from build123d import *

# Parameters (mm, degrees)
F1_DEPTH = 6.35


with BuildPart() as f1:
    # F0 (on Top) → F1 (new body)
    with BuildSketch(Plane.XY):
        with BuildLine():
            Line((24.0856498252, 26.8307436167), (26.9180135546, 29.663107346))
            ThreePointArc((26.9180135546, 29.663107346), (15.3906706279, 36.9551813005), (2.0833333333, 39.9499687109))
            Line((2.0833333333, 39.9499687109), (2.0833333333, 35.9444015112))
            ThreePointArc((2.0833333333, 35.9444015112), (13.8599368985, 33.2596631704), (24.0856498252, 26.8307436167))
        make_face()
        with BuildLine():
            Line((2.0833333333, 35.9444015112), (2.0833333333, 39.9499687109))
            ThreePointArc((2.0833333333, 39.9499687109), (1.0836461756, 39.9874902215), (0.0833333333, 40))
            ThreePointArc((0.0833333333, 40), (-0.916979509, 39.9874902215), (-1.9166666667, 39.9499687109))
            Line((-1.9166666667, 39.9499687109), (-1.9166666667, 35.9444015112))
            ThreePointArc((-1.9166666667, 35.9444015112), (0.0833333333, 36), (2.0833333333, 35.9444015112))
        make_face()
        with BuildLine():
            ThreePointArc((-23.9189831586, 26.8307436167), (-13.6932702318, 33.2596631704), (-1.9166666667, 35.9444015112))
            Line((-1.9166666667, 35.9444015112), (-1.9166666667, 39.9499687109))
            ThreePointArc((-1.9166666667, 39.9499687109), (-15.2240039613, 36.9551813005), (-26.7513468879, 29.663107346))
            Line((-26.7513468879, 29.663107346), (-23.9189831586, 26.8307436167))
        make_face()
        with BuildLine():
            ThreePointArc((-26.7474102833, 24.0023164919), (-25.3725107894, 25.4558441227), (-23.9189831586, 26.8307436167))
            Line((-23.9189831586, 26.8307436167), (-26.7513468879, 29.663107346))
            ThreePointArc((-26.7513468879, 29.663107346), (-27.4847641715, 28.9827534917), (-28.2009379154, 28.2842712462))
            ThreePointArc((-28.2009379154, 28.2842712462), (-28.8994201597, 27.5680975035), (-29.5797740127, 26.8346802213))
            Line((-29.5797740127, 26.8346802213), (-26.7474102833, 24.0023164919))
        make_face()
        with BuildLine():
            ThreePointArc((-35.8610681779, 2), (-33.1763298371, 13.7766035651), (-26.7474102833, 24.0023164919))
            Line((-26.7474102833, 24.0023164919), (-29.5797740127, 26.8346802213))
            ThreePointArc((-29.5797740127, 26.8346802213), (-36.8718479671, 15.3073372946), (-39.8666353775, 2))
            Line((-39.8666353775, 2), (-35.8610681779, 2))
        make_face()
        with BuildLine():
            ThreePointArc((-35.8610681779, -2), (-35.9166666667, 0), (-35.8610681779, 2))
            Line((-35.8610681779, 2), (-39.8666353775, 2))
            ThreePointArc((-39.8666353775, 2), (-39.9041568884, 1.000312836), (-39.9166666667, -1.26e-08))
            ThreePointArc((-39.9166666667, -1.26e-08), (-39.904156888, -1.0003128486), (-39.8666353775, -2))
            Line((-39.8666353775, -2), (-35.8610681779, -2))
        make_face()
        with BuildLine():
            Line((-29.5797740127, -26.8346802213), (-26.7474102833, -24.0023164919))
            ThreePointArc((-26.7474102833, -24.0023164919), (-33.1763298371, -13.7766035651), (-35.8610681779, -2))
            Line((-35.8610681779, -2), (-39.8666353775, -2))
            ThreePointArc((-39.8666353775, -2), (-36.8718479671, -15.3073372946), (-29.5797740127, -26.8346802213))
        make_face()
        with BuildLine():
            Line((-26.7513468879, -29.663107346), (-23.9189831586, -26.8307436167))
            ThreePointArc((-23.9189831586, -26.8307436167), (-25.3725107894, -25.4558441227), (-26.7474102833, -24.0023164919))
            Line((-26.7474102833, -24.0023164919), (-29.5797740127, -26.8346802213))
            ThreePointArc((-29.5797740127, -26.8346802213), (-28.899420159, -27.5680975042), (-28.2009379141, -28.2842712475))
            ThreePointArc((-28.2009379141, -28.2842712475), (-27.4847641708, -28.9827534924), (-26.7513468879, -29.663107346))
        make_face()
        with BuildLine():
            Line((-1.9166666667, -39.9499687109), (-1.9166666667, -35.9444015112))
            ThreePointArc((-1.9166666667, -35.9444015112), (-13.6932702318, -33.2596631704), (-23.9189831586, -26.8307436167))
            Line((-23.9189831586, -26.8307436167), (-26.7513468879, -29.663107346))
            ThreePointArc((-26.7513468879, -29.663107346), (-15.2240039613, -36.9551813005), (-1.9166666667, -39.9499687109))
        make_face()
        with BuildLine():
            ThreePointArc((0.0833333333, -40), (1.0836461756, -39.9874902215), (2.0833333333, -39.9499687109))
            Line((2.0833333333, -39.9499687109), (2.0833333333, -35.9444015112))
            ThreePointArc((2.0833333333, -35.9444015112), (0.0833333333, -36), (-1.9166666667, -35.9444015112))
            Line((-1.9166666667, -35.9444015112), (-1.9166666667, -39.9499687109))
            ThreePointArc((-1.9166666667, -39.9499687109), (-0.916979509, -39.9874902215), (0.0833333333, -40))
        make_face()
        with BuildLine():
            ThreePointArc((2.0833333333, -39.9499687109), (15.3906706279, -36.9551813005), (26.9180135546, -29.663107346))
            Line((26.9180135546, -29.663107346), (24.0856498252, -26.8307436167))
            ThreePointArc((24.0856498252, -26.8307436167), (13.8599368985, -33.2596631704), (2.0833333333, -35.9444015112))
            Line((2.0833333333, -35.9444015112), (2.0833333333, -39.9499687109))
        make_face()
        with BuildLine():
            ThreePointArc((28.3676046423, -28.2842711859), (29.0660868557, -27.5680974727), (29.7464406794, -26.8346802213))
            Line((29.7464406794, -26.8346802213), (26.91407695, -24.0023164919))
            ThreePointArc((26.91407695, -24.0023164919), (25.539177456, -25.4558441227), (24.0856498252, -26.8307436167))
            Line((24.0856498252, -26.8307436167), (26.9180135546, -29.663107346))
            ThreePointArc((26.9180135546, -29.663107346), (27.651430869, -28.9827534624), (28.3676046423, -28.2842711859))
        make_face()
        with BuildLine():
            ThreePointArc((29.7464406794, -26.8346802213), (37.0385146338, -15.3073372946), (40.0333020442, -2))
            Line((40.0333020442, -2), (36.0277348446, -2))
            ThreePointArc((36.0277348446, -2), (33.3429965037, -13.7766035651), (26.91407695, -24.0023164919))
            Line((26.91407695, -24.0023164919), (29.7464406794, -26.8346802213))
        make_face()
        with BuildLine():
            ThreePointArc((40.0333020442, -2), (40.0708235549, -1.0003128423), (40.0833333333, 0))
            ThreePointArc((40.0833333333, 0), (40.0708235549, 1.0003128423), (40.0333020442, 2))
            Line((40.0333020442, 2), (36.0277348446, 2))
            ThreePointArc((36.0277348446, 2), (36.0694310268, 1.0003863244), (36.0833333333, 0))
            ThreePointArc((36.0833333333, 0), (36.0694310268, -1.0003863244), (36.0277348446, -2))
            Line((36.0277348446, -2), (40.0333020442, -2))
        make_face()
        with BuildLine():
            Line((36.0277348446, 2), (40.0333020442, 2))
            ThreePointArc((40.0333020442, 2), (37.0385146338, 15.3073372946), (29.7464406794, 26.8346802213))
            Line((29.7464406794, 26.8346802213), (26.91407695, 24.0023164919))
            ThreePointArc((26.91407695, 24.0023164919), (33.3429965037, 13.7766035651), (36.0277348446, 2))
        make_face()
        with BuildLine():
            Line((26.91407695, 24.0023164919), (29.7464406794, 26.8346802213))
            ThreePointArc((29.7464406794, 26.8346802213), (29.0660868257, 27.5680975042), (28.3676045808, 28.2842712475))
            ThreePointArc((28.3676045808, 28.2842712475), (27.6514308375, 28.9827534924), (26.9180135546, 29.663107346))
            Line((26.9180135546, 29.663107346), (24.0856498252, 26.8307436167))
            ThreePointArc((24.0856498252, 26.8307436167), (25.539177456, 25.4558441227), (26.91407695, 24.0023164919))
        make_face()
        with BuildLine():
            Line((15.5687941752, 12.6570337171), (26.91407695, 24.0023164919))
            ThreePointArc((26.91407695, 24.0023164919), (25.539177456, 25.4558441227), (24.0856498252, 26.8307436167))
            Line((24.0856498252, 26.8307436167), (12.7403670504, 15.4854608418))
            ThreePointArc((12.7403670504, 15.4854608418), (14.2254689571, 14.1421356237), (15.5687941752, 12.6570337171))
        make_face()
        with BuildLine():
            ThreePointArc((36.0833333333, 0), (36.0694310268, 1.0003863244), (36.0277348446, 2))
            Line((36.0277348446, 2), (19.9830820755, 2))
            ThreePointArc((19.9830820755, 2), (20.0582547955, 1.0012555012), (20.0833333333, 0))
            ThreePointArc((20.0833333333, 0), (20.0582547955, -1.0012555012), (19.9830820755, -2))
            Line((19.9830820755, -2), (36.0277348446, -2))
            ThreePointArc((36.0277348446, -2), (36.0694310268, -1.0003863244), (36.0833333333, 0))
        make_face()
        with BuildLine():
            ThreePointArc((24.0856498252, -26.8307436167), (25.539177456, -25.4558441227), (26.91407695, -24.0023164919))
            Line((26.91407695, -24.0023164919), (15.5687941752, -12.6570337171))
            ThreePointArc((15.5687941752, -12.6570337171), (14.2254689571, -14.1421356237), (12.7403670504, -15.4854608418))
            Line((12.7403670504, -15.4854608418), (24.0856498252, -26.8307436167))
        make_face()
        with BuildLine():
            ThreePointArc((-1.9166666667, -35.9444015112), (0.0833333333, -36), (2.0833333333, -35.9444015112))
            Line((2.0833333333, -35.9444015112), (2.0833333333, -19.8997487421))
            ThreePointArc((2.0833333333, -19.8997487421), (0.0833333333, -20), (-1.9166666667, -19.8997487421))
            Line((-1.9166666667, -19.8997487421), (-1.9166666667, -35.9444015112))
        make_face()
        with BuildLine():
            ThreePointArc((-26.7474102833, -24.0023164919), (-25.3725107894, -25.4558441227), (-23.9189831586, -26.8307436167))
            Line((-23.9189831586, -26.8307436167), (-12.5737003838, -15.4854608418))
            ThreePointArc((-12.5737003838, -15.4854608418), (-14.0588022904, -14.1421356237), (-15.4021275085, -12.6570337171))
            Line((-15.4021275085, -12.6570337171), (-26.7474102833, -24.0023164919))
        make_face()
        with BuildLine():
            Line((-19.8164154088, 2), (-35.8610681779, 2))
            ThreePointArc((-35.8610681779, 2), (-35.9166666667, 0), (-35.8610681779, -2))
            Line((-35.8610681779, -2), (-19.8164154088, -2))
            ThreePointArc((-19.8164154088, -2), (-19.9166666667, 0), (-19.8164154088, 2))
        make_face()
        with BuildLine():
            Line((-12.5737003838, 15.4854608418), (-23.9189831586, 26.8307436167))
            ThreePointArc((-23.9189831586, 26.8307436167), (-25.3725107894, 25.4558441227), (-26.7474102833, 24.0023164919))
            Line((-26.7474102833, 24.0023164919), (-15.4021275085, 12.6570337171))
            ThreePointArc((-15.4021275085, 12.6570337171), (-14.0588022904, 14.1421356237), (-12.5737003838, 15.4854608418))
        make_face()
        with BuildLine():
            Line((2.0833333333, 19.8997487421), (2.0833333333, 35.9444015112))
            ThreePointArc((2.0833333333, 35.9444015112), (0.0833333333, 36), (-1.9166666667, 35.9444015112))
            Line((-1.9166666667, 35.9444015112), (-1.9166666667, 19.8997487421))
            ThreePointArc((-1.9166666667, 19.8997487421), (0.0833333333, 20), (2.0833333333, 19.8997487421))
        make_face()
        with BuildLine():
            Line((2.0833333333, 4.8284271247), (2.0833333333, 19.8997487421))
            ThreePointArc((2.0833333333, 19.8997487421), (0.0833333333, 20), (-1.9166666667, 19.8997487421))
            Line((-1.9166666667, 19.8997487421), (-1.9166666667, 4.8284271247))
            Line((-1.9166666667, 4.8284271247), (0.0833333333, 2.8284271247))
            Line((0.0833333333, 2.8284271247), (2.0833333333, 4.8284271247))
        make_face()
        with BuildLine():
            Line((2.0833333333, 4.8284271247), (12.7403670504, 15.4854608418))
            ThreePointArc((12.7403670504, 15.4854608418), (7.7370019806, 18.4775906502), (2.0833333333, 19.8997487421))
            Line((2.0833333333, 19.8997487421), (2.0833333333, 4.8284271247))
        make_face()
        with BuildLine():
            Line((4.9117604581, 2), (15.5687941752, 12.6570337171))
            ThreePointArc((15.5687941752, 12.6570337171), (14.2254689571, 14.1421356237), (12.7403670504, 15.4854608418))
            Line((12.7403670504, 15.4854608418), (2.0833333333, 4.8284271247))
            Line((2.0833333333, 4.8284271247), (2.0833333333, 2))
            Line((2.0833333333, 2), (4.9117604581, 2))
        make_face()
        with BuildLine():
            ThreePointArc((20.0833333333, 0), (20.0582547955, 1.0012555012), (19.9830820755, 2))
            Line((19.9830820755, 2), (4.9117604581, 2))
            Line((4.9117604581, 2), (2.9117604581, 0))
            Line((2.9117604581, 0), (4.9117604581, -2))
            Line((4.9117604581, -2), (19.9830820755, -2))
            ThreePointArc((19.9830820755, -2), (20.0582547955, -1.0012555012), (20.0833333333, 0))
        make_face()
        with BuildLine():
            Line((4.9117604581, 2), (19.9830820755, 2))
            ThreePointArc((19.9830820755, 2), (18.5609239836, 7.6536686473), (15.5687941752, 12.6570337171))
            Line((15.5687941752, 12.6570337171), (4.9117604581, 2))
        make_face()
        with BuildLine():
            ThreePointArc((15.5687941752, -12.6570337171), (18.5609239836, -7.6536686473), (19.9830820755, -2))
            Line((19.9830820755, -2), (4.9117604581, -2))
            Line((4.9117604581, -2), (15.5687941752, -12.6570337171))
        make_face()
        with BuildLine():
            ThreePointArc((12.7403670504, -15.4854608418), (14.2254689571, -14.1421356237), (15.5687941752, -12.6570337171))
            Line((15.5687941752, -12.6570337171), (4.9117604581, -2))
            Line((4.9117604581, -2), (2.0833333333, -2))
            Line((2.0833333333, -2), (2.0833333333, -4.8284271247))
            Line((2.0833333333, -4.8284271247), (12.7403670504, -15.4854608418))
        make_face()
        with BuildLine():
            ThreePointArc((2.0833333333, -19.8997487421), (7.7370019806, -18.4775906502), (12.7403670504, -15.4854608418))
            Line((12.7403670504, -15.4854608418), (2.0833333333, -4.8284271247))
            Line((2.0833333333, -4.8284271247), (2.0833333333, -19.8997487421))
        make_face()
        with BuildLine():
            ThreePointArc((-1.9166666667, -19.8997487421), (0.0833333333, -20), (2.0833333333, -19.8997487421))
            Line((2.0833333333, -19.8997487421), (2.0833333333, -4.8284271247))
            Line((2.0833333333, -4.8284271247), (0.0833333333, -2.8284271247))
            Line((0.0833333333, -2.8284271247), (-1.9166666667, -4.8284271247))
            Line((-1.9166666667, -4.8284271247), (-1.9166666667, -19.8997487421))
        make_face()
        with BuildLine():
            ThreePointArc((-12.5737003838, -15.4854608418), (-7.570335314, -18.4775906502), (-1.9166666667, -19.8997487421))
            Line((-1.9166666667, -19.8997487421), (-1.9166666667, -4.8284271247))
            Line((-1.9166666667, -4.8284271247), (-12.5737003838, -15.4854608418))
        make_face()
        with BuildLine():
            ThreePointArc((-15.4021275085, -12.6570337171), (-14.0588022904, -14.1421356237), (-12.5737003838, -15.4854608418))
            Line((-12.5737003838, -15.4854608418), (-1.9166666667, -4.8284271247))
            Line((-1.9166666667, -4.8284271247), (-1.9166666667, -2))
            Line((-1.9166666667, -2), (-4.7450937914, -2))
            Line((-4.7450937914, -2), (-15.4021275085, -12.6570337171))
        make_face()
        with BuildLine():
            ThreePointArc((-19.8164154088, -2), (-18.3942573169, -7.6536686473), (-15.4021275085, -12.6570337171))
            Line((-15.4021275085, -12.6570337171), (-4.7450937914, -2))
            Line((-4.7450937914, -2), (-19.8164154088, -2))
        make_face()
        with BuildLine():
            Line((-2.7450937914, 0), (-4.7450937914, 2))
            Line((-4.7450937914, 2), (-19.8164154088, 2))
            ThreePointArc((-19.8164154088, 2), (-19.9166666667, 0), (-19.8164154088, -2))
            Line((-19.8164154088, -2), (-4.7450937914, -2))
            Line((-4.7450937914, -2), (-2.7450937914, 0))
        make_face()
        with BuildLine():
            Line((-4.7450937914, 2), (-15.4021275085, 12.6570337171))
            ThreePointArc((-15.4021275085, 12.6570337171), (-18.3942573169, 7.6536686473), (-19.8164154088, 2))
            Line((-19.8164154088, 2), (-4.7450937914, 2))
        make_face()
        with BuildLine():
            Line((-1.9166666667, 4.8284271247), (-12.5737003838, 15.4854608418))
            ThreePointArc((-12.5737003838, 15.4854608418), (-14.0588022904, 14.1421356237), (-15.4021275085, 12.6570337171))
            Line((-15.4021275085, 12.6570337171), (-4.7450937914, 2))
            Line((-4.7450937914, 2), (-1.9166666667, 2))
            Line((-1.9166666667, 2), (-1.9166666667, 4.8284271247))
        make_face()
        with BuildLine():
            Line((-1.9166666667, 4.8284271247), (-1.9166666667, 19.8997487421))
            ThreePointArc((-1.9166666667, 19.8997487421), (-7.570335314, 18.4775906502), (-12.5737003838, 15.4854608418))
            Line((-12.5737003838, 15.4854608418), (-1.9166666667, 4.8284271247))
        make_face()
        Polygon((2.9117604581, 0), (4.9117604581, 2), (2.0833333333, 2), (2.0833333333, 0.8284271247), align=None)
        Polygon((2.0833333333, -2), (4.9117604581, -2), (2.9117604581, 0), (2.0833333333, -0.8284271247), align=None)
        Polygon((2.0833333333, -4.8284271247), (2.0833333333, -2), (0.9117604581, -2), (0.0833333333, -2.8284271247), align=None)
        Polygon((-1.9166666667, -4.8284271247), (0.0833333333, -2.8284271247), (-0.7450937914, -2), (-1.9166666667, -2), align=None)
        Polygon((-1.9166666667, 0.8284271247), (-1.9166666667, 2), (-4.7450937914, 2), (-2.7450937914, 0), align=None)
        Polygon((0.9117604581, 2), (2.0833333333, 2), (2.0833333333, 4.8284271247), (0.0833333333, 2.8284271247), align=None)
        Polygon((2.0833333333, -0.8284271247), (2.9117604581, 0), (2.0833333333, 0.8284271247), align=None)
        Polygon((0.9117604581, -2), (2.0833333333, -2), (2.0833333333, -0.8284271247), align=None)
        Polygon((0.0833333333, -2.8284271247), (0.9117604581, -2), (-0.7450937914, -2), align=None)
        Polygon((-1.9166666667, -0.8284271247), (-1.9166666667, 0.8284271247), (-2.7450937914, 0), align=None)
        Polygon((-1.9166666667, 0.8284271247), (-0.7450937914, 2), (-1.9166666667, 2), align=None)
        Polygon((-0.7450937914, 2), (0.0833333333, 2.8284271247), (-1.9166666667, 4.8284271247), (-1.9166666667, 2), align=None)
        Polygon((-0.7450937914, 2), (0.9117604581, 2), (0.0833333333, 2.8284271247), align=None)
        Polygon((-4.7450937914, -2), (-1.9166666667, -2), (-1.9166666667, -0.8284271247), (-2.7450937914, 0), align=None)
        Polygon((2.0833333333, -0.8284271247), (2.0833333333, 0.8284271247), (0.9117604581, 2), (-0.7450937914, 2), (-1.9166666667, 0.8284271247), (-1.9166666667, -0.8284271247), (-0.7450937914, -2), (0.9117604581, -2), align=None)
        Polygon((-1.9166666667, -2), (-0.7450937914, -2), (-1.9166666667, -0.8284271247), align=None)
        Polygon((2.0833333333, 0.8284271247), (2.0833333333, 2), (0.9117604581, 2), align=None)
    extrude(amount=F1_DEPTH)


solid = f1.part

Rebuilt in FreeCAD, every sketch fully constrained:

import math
import FreeCAD as App
import Part
import Sketcher
from FreeCAD import Vector
Q = App.Units.Quantity

doc = App.newDocument("Part")
params = doc.addObject("Spreadsheet::Sheet", "Params")
for row, (alias, value) in enumerate([
    ("sketch1_radius", "40 mm"),
    ("sketch1_radius2", "20 mm"),
    ("sketch1_radius3", "36 mm"),
    ("pad1_length", "6.35 mm"),
], start=1):
    params.set(f"A{row}", alias)
    params.set(f"B{row}", "=" + value)
    params.setAlias(f"B{row}", alias)

body = doc.addObject("PartDesign::Body", "Body")

sketch1 = body.newObject("Sketcher::SketchObject", "Sketch")
sketch1.AttachmentSupport = (doc.getObject("XY_Plane"), [""])
sketch1.MapMode = "FlatFace"
sketch1.addGeometry(Part.ArcOfCircle(Part.Circle(Vector(0.1, 0, 0), Vector(0, 0, 1), 40), math.radians(48), math.radians(87)), False)
sketch1.addGeometry(Part.ArcOfCircle(Part.Circle(Vector(0.1, 0, 0), Vector(0, 0, 1), 40), math.radians(87.13), math.radians(90)), False)
sketch1.addGeometry(Part.ArcOfCircle(Part.Circle(Vector(0.1, 0, 0), Vector(0, 0, 1), 40), math.radians(90), math.radians(92.87)), False)
sketch1.addGeometry(Part.ArcOfCircle(Part.Circle(Vector(0.1, 0, 0), Vector(0, 0, 1), 40), math.radians(93), math.radians(132)), False)
sketch1.addGeometry(Part.ArcOfCircle(Part.Circle(Vector(0.1, 0, 0), Vector(0, 0, 1), 40), math.radians(132.13), math.radians(135)), False)
sketch1.addGeometry(Part.ArcOfCircle(Part.Circle(Vector(0.1, 0, 0), Vector(0, 0, 1), 40), math.radians(135), math.radians(137.87)), False)
sketch1.addGeometry(Part.ArcOfCircle(Part.Circle(Vector(0.1, 0, 0), Vector(0, 0, 1), 40), math.radians(138), math.radians(177)), False)
sketch1.addGeometry(Part.ArcOfCircle(Part.Circle(Vector(0.1, 0, 0), Vector(0, 0, 1), 40), math.radians(177.13), math.radians(180)), False)
sketch1.addGeometry(Part.ArcOfCircle(Part.Circle(Vector(0.1, 0, 0), Vector(0, 0, 1), 40), math.radians(-180), math.radians(-177.13)), False)
sketch1.addGeometry(Part.ArcOfCircle(Part.Circle(Vector(0.1, 0, 0), Vector(0, 0, 1), 40), math.radians(-177), math.radians(-138)), False)
sketch1.addGeometry(Part.ArcOfCircle(Part.Circle(Vector(0.1, 0, 0), Vector(0, 0, 1), 40), math.radians(-137.87), math.radians(-135)), False)
sketch1.addGeometry(Part.ArcOfCircle(Part.Circle(Vector(0.1, 0, 0), Vector(0, 0, 1), 40), math.radians(-135), math.radians(-132.13)), False)
sketch1.addGeometry(Part.ArcOfCircle(Part.Circle(Vector(0.1, 0, 0), Vector(0, 0, 1), 40), math.radians(-132), math.radians(-93)), False)
sketch1.addGeometry(Part.ArcOfCircle(Part.Circle(Vector(0.1, 0, 0), Vector(0, 0, 1), 40), math.radians(-92.87), math.radians(-90)), False)
sketch1.addGeometry(Part.ArcOfCircle(Part.Circle(Vector(0.1, 0, 0), Vector(0, 0, 1), 40), math.radians(-90), math.radians(-87.13)), False)
sketch1.addGeometry(Part.ArcOfCircle(Part.Circle(Vector(0.1, 0, 0), Vector(0, 0, 1), 40), math.radians(-87), math.radians(-48)), False)
sketch1.addGeometry(Part.ArcOfCircle(Part.Circle(Vector(0.1, 0, 0), Vector(0, 0, 1), 40), math.radians(-47.87), math.radians(-45)), False)
sketch1.addGeometry(Part.ArcOfCircle(Part.Circle(Vector(0.1, 0, 0), Vector(0, 0, 1), 40), math.radians(-45), math.radians(-42.13)), False)
sketch1.addGeometry(Part.ArcOfCircle(Part.Circle(Vector(0.1, 0, 0), Vector(0, 0, 1), 40), math.radians(-42), math.radians(-3)), False)
sketch1.addGeometry(Part.ArcOfCircle(Part.Circle(Vector(0.1, 0, 0), Vector(0, 0, 1), 40), math.radians(-2.87), math.radians(0)), False)
sketch1.addGeometry(Part.ArcOfCircle(Part.Circle(Vector(0.1, 0, 0), Vector(0, 0, 1), 40), math.radians(0), math.radians(2.87)), False)
sketch1.addGeometry(Part.ArcOfCircle(Part.Circle(Vector(0.1, 0, 0), Vector(0, 0, 1), 40), math.radians(3), math.radians(42)), False)
sketch1.addGeometry(Part.ArcOfCircle(Part.Circle(Vector(0.1, 0, 0), Vector(0, 0, 1), 40), math.radians(42.13), math.radians(45)), False)
sketch1.addGeometry(Part.ArcOfCircle(Part.Circle(Vector(0.1, 0, 0), Vector(0, 0, 1), 40), math.radians(45), math.radians(47.87)), False)
sketch1.addGeometry(Part.LineSegment(Vector(-23.9, -26.8, 0), Vector(-12.6, -15.5, 0)), False)
sketch1.addGeometry(Part.ArcOfCircle(Part.Circle(Vector(0.1, 0, 0), Vector(0, 0, 1), 20), math.radians(-129), math.radians(-96)), False)
sketch1.addGeometry(Part.LineSegment(Vector(-1.9, -19.9, 0), Vector(-1.9, -35.9, 0)), False)
sketch1.addGeometry(Part.ArcOfCircle(Part.Circle(Vector(0.1, 0, 0), Vector(0, 0, 1), 36), math.radians(-132), math.radians(-93)), False)
sketch1.addGeometry(Part.LineSegment(Vector(-35.9, -2, 0), Vector(-19.8, -2, 0)), False)
sketch1.addGeometry(Part.ArcOfCircle(Part.Circle(Vector(0.1, 0, 0), Vector(0, 0, 1), 20), math.radians(-174), math.radians(-141)), False)
sketch1.addGeometry(Part.LineSegment(Vector(-15.4, -12.7, 0), Vector(-26.7, -24, 0)), False)
sketch1.addGeometry(Part.ArcOfCircle(Part.Circle(Vector(0.1, 0, 0), Vector(0, 0, 1), 36), math.radians(-177), math.radians(-138)), False)
sketch1.addGeometry(Part.LineSegment(Vector(2.1, -35.9, 0), Vector(2.1, -19.9, 0)), False)
sketch1.addGeometry(Part.ArcOfCircle(Part.Circle(Vector(0.1, 0, 0), Vector(0, 0, 1), 20), math.radians(-84), math.radians(-51)), False)
sketch1.addGeometry(Part.LineSegment(Vector(12.7, -15.5, 0), Vector(24.1, -26.8, 0)), False)
sketch1.addGeometry(Part.ArcOfCircle(Part.Circle(Vector(0.1, 0, 0), Vector(0, 0, 1), 36), math.radians(-87), math.radians(-48)), False)
sketch1.addGeometry(Part.LineSegment(Vector(26.9, -24, 0), Vector(15.6, -12.7, 0)), False)
sketch1.addGeometry(Part.ArcOfCircle(Part.Circle(Vector(0.1, 0, 0), Vector(0, 0, 1), 20), math.radians(-39), math.radians(-6)), False)
sketch1.addGeometry(Part.LineSegment(Vector(20, -2, 0), Vector(36, -2, 0)), False)
sketch1.addGeometry(Part.ArcOfCircle(Part.Circle(Vector(0.1, 0, 0), Vector(0, 0, 1), 36), math.radians(-42), math.radians(-3)), False)
sketch1.addGeometry(Part.LineSegment(Vector(-26.7, 24, 0), Vector(-15.4, 12.7, 0)), False)
sketch1.addGeometry(Part.ArcOfCircle(Part.Circle(Vector(0.1, 0, 0), Vector(0, 0, 1), 20), math.radians(141), math.radians(174)), False)
sketch1.addGeometry(Part.LineSegment(Vector(-19.8, 2, 0), Vector(-35.9, 2, 0)), False)
sketch1.addGeometry(Part.ArcOfCircle(Part.Circle(Vector(0.1, 0, 0), Vector(0, 0, 1), 36), math.radians(138), math.radians(177)), False)
sketch1.addGeometry(Part.LineSegment(Vector(-1.9, 35.9, 0), Vector(-1.9, 19.9, 0)), False)
sketch1.addGeometry(Part.ArcOfCircle(Part.Circle(Vector(0.1, 0, 0), Vector(0, 0, 1), 20), math.radians(96), math.radians(129)), False)
sketch1.addGeometry(Part.LineSegment(Vector(-12.6, 15.5, 0), Vector(-23.9, 26.8, 0)), False)
sketch1.addGeometry(Part.ArcOfCircle(Part.Circle(Vector(0.1, 0, 0), Vector(0, 0, 1), 36), math.radians(93), math.radians(132)), False)
sketch1.addGeometry(Part.LineSegment(Vector(36, 2, 0), Vector(20, 2, 0)), False)
sketch1.addGeometry(Part.ArcOfCircle(Part.Circle(Vector(0.1, 0, 0), Vector(0, 0, 1), 20), math.radians(6), math.radians(39)), False)
sketch1.addGeometry(Part.LineSegment(Vector(15.6, 12.7, 0), Vector(26.9, 24, 0)), False)
sketch1.addGeometry(Part.ArcOfCircle(Part.Circle(Vector(0.1, 0, 0), Vector(0, 0, 1), 36), math.radians(3), math.radians(42)), False)
sketch1.addGeometry(Part.LineSegment(Vector(24.1, 26.8, 0), Vector(12.7, 15.5, 0)), False)
sketch1.addGeometry(Part.ArcOfCircle(Part.Circle(Vector(0.1, 0, 0), Vector(0, 0, 1), 20), math.radians(51), math.radians(84)), False)
sketch1.addGeometry(Part.LineSegment(Vector(2.1, 19.9, 0), Vector(2.1, 35.9, 0)), False)
sketch1.addGeometry(Part.ArcOfCircle(Part.Circle(Vector(0.1, 0, 0), Vector(0, 0, 1), 36), math.radians(48), math.radians(87)), False)
sketch1.addConstraint(Sketcher.Constraint("Tangent", 0, 2, 1, 1))
sketch1.addConstraint(Sketcher.Constraint("Tangent", 1, 2, 2, 1))
sketch1.addConstraint(Sketcher.Constraint("Tangent", 2, 2, 3, 1))
sketch1.addConstraint(Sketcher.Constraint("Tangent", 3, 2, 4, 1))
sketch1.addConstraint(Sketcher.Constraint("Tangent", 4, 2, 5, 1))
sketch1.addConstraint(Sketcher.Constraint("Tangent", 5, 2, 6, 1))
sketch1.addConstraint(Sketcher.Constraint("Tangent", 6, 2, 7, 1))
sketch1.addConstraint(Sketcher.Constraint("Tangent", 7, 2, 8, 1))
sketch1.addConstraint(Sketcher.Constraint("Tangent", 8, 2, 9, 1))
sketch1.addConstraint(Sketcher.Constraint("Tangent", 9, 2, 10, 1))
sketch1.addConstraint(Sketcher.Constraint("Tangent", 10, 2, 11, 1))
sketch1.addConstraint(Sketcher.Constraint("Tangent", 11, 2, 12, 1))
sketch1.addConstraint(Sketcher.Constraint("Tangent", 12, 2, 13, 1))
sketch1.addConstraint(Sketcher.Constraint("Tangent", 13, 2, 14, 1))
sketch1.addConstraint(Sketcher.Constraint("Tangent", 14, 2, 15, 1))
sketch1.addConstraint(Sketcher.Constraint("Tangent", 15, 2, 16, 1))
sketch1.addConstraint(Sketcher.Constraint("Tangent", 16, 2, 17, 1))
sketch1.addConstraint(Sketcher.Constraint("Tangent", 17, 2, 18, 1))
sketch1.addConstraint(Sketcher.Constraint("Tangent", 18, 2, 19, 1))
sketch1.addConstraint(Sketcher.Constraint("Tangent", 19, 2, 20, 1))
sketch1.addConstraint(Sketcher.Constraint("Tangent", 20, 2, 21, 1))
sketch1.addConstraint(Sketcher.Constraint("Tangent", 21, 2, 22, 1))
sketch1.addConstraint(Sketcher.Constraint("Tangent", 22, 2, 23, 1))
sketch1.addConstraint(Sketcher.Constraint("Tangent", 23, 2, 0, 1))
sketch1.addConstraint(Sketcher.Constraint("Coincident", 24, 2, 25, 1))
sketch1.addConstraint(Sketcher.Constraint("Coincident", 25, 2, 26, 1))
sketch1.addConstraint(Sketcher.Constraint("Coincident", 26, 2, 27, 2))
sketch1.addConstraint(Sketcher.Constraint("Coincident", 27, 1, 24, 1))
sketch1.addConstraint(Sketcher.Constraint("Coincident", 28, 2, 29, 1))
sketch1.addConstraint(Sketcher.Constraint("Coincident", 29, 2, 30, 1))
sketch1.addConstraint(Sketcher.Constraint("Coincident", 30, 2, 31, 2))
sketch1.addConstraint(Sketcher.Constraint("Coincident", 31, 1, 28, 1))
sketch1.addConstraint(Sketcher.Constraint("Coincident", 32, 2, 33, 1))
sketch1.addConstraint(Sketcher.Constraint("Coincident", 33, 2, 34, 1))
sketch1.addConstraint(Sketcher.Constraint("Coincident", 34, 2, 35, 2))
sketch1.addConstraint(Sketcher.Constraint("Coincident", 35, 1, 32, 1))
sketch1.addConstraint(Sketcher.Constraint("Coincident", 36, 2, 37, 1))
sketch1.addConstraint(Sketcher.Constraint("Coincident", 37, 2, 38, 1))
sketch1.addConstraint(Sketcher.Constraint("Coincident", 38, 2, 39, 2))
sketch1.addConstraint(Sketcher.Constraint("Coincident", 39, 1, 36, 1))
sketch1.addConstraint(Sketcher.Constraint("Coincident", 40, 2, 41, 1))
sketch1.addConstraint(Sketcher.Constraint("Coincident", 41, 2, 42, 1))
sketch1.addConstraint(Sketcher.Constraint("Coincident", 42, 2, 43, 2))
sketch1.addConstraint(Sketcher.Constraint("Coincident", 43, 1, 40, 1))
sketch1.addConstraint(Sketcher.Constraint("Coincident", 44, 2, 45, 1))
sketch1.addConstraint(Sketcher.Constraint("Coincident", 45, 2, 46, 1))
sketch1.addConstraint(Sketcher.Constraint("Coincident", 46, 2, 47, 2))
sketch1.addConstraint(Sketcher.Constraint("Coincident", 47, 1, 44, 1))
sketch1.addConstraint(Sketcher.Constraint("Coincident", 48, 2, 49, 1))
sketch1.addConstraint(Sketcher.Constraint("Coincident", 49, 2, 50, 1))
sketch1.addConstraint(Sketcher.Constraint("Coincident", 50, 2, 51, 2))
sketch1.addConstraint(Sketcher.Constraint("Coincident", 51, 1, 48, 1))
sketch1.addConstraint(Sketcher.Constraint("Coincident", 52, 2, 53, 1))
sketch1.addConstraint(Sketcher.Constraint("Coincident", 53, 2, 54, 1))
sketch1.addConstraint(Sketcher.Constraint("Coincident", 54, 2, 55, 2))
sketch1.addConstraint(Sketcher.Constraint("Coincident", 55, 1, 52, 1))
sketch1.addConstraint(Sketcher.Constraint("Vertical", 26))
sketch1.addConstraint(Sketcher.Constraint("Horizontal", 28))
sketch1.addConstraint(Sketcher.Constraint("Vertical", 32))
sketch1.addConstraint(Sketcher.Constraint("Horizontal", 38))
sketch1.addConstraint(Sketcher.Constraint("Horizontal", 42))
sketch1.addConstraint(Sketcher.Constraint("Vertical", 44))
sketch1.addConstraint(Sketcher.Constraint("Horizontal", 48))
sketch1.addConstraint(Sketcher.Constraint("Vertical", 54))
sketch1.addConstraint(Sketcher.Constraint("Coincident", 2, 3, 0, 3))
sketch1.addConstraint(Sketcher.Constraint("Coincident", 4, 3, 0, 3))
sketch1.addConstraint(Sketcher.Constraint("Coincident", 6, 3, 0, 3))
sketch1.addConstraint(Sketcher.Constraint("Coincident", 8, 3, 0, 3))
sketch1.addConstraint(Sketcher.Constraint("Coincident", 10, 3, 0, 3))
sketch1.addConstraint(Sketcher.Constraint("Coincident", 12, 3, 0, 3))
sketch1.addConstraint(Sketcher.Constraint("Coincident", 14, 3, 0, 3))
sketch1.addConstraint(Sketcher.Constraint("Coincident", 16, 3, 0, 3))
sketch1.addConstraint(Sketcher.Constraint("Coincident", 18, 3, 0, 3))
sketch1.addConstraint(Sketcher.Constraint("Coincident", 20, 3, 0, 3))
sketch1.addConstraint(Sketcher.Constraint("Coincident", 25, 3, 0, 3))
sketch1.addConstraint(Sketcher.Constraint("Coincident", 27, 3, 0, 3))
sketch1.addConstraint(Sketcher.Constraint("Coincident", 29, 3, 0, 3))
sketch1.addConstraint(Sketcher.Constraint("Coincident", 31, 3, 0, 3))
sketch1.addConstraint(Sketcher.Constraint("Coincident", 33, 3, 0, 3))
sketch1.addConstraint(Sketcher.Constraint("Coincident", 35, 3, 0, 3))
sketch1.addConstraint(Sketcher.Constraint("Coincident", 37, 3, 0, 3))
sketch1.addConstraint(Sketcher.Constraint("Coincident", 39, 3, 0, 3))
sketch1.addConstraint(Sketcher.Constraint("Coincident", 41, 3, 0, 3))
sketch1.addConstraint(Sketcher.Constraint("Coincident", 43, 3, 0, 3))
sketch1.addConstraint(Sketcher.Constraint("Coincident", 45, 3, 0, 3))
sketch1.addConstraint(Sketcher.Constraint("Coincident", 47, 3, 0, 3))
sketch1.addConstraint(Sketcher.Constraint("Coincident", 49, 3, 0, 3))
sketch1.addConstraint(Sketcher.Constraint("Coincident", 51, 3, 0, 3))
sketch1.addConstraint(Sketcher.Constraint("Coincident", 53, 3, 0, 3))
sketch1.addConstraint(Sketcher.Constraint("Coincident", 55, 3, 0, 3))
sketch1.addConstraint(Sketcher.Constraint("Equal", 20, 21))
sketch1.addConstraint(Sketcher.Constraint("Equal", 25, 29))
sketch1.addConstraint(Sketcher.Constraint("Equal", 27, 31))
sketch1.addConstraint(Sketcher.Constraint("Equal", 29, 33))
sketch1.addConstraint(Sketcher.Constraint("Equal", 31, 35))
sketch1.addConstraint(Sketcher.Constraint("Equal", 33, 37))
sketch1.addConstraint(Sketcher.Constraint("Equal", 35, 39))
sketch1.addConstraint(Sketcher.Constraint("Equal", 37, 41))
sketch1.addConstraint(Sketcher.Constraint("Equal", 39, 43))
sketch1.addConstraint(Sketcher.Constraint("Equal", 41, 45))
sketch1.addConstraint(Sketcher.Constraint("Equal", 43, 47))
sketch1.addConstraint(Sketcher.Constraint("Equal", 45, 49))
sketch1.addConstraint(Sketcher.Constraint("Equal", 47, 51))
sketch1.addConstraint(Sketcher.Constraint("Equal", 49, 53))
sketch1.addConstraint(Sketcher.Constraint("Equal", 51, 55))
sketch1.addConstraint(Sketcher.Constraint("Symmetric", 6, 2, 8, 2, -1))
sketch1.addConstraint(Sketcher.Constraint("PointOnObject", 7, 2, -1))
sketch1.addConstraint(Sketcher.Constraint("PointOnObject", 19, 2, -1))
sketch1.addConstraint(Sketcher.Constraint("Parallel", 24, 30))
sketch1.addConstraint(Sketcher.Constraint("Perpendicular", 30, 34))
sketch1.addConstraint(Sketcher.Constraint("Parallel", 34, 36))
sketch1.addConstraint(Sketcher.Constraint("Parallel", 36, 40))
sketch1.addConstraint(Sketcher.Constraint("Parallel", 40, 46))
sketch1.addConstraint(Sketcher.Constraint("Perpendicular", 46, 50))
sketch1.addConstraint(Sketcher.Constraint("Parallel", 50, 52))
sketch1.addConstraint(Sketcher.Constraint("Horizontal", 0, 2, 2, 2))
sketch1.addConstraint(Sketcher.Constraint("Horizontal", 12, 2, 14, 2))
sketch1.addConstraint(Sketcher.Constraint("Horizontal", 11, 2, 15, 2))
sketch1.addConstraint(Sketcher.Constraint("Horizontal", 10, 2, 16, 2))
sketch1.addConstraint(Sketcher.Constraint("Horizontal", 9, 2, 17, 2))
sketch1.addConstraint(Sketcher.Constraint("Horizontal", 8, 2, 18, 2))
sketch1.addConstraint(Sketcher.Constraint("Horizontal", 6, 2, 20, 2))
sketch1.addConstraint(Sketcher.Constraint("Horizontal", 5, 2, 21, 2))
sketch1.addConstraint(Sketcher.Constraint("Horizontal", 4, 2, 22, 2))
sketch1.addConstraint(Sketcher.Constraint("Horizontal", 3, 2, 23, 2))
sketch1.addConstraint(Sketcher.Constraint("Horizontal", 18, 2, 28, 2))
sketch1.addConstraint(Sketcher.Constraint("Horizontal", 25, 2, 32, 2))
sketch1.addConstraint(Sketcher.Constraint("Horizontal", 24, 2, 33, 2))
sketch1.addConstraint(Sketcher.Constraint("Horizontal", 27, 1, 34, 2))
sketch1.addConstraint(Sketcher.Constraint("Horizontal", 29, 2, 36, 2))
sketch1.addConstraint(Sketcher.Constraint("Horizontal", 31, 1, 37, 2))
sketch1.addConstraint(Sketcher.Constraint("Horizontal", 20, 2, 41, 2))
sketch1.addConstraint(Sketcher.Constraint("Horizontal", 42, 2, 48, 2))
sketch1.addConstraint(Sketcher.Constraint("Horizontal", 40, 2, 49, 2))
sketch1.addConstraint(Sketcher.Constraint("Horizontal", 45, 2, 52, 2))
sketch1.addConstraint(Sketcher.Constraint("Horizontal", 44, 2, 53, 2))
sketch1.addConstraint(Sketcher.Constraint("Vertical", 55, 3, 1, 2))
sketch1.addConstraint(Sketcher.Constraint("Vertical", 5, 2, 9, 2))
sketch1.addConstraint(Sketcher.Constraint("Vertical", 4, 2, 10, 2))
sketch1.addConstraint(Sketcher.Constraint("Vertical", 3, 2, 11, 2))
sketch1.addConstraint(Sketcher.Constraint("Vertical", 2, 2, 12, 2))
sketch1.addConstraint(Sketcher.Constraint("Vertical", 1, 2, 13, 2))
sketch1.addConstraint(Sketcher.Constraint("Vertical", 12, 2, 25, 2))
sketch1.addConstraint(Sketcher.Constraint("Vertical", 29, 2, 40, 2))
sketch1.addConstraint(Sketcher.Constraint("Vertical", 26, 2, 44, 2))
sketch1.addConstraint(Sketcher.Constraint("Vertical", 24, 2, 45, 2))
sketch1.addConstraint(Sketcher.Constraint("Equal", 48, 26))
sketch1.addConstraint(Sketcher.Constraint("Equal", 24, 30))
sketch1.addConstraint(Sketcher.Constraint("Radius", 0, Q("40 mm")))
sketch1.addConstraint(Sketcher.Constraint("Radius", 25, Q("20 mm")))
sketch1.addConstraint(Sketcher.Constraint("Radius", 27, Q("36 mm")))
sketch1.addConstraint(Sketcher.Constraint("DistanceY", -1, 1, 6, 2, Q("2 mm")))
sketch1.addConstraint(Sketcher.Constraint("DistanceX", 24, 2, -1, 1, Q("12.5737 mm")))
sketch1.addConstraint(Sketcher.Constraint("DistanceY", -1, 1, 4, 2, Q("28.284271 mm")))
sketch1.addConstraint(Sketcher.Constraint("DistanceY", -1, 1, 5, 2, Q("26.83468 mm")))
sketch1.addConstraint(Sketcher.Constraint("DistanceX", -1, 1, 17, 2, Q("29.746441 mm")))
sketch1.addConstraint(Sketcher.Constraint("DistanceX", 3, 2, -1, 1, Q("26.751347 mm")))
sketch1.setExpression("Constraints[148]", "Params.sketch1_radius")
sketch1.setExpression("Constraints[149]", "Params.sketch1_radius2")
sketch1.setExpression("Constraints[150]", "Params.sketch1_radius3")
pad1 = body.newObject("PartDesign::Pad", "Pad")
pad1.Profile = sketch1
pad1.setExpression("Length", "Params.pad1_length")

doc.recompute()
